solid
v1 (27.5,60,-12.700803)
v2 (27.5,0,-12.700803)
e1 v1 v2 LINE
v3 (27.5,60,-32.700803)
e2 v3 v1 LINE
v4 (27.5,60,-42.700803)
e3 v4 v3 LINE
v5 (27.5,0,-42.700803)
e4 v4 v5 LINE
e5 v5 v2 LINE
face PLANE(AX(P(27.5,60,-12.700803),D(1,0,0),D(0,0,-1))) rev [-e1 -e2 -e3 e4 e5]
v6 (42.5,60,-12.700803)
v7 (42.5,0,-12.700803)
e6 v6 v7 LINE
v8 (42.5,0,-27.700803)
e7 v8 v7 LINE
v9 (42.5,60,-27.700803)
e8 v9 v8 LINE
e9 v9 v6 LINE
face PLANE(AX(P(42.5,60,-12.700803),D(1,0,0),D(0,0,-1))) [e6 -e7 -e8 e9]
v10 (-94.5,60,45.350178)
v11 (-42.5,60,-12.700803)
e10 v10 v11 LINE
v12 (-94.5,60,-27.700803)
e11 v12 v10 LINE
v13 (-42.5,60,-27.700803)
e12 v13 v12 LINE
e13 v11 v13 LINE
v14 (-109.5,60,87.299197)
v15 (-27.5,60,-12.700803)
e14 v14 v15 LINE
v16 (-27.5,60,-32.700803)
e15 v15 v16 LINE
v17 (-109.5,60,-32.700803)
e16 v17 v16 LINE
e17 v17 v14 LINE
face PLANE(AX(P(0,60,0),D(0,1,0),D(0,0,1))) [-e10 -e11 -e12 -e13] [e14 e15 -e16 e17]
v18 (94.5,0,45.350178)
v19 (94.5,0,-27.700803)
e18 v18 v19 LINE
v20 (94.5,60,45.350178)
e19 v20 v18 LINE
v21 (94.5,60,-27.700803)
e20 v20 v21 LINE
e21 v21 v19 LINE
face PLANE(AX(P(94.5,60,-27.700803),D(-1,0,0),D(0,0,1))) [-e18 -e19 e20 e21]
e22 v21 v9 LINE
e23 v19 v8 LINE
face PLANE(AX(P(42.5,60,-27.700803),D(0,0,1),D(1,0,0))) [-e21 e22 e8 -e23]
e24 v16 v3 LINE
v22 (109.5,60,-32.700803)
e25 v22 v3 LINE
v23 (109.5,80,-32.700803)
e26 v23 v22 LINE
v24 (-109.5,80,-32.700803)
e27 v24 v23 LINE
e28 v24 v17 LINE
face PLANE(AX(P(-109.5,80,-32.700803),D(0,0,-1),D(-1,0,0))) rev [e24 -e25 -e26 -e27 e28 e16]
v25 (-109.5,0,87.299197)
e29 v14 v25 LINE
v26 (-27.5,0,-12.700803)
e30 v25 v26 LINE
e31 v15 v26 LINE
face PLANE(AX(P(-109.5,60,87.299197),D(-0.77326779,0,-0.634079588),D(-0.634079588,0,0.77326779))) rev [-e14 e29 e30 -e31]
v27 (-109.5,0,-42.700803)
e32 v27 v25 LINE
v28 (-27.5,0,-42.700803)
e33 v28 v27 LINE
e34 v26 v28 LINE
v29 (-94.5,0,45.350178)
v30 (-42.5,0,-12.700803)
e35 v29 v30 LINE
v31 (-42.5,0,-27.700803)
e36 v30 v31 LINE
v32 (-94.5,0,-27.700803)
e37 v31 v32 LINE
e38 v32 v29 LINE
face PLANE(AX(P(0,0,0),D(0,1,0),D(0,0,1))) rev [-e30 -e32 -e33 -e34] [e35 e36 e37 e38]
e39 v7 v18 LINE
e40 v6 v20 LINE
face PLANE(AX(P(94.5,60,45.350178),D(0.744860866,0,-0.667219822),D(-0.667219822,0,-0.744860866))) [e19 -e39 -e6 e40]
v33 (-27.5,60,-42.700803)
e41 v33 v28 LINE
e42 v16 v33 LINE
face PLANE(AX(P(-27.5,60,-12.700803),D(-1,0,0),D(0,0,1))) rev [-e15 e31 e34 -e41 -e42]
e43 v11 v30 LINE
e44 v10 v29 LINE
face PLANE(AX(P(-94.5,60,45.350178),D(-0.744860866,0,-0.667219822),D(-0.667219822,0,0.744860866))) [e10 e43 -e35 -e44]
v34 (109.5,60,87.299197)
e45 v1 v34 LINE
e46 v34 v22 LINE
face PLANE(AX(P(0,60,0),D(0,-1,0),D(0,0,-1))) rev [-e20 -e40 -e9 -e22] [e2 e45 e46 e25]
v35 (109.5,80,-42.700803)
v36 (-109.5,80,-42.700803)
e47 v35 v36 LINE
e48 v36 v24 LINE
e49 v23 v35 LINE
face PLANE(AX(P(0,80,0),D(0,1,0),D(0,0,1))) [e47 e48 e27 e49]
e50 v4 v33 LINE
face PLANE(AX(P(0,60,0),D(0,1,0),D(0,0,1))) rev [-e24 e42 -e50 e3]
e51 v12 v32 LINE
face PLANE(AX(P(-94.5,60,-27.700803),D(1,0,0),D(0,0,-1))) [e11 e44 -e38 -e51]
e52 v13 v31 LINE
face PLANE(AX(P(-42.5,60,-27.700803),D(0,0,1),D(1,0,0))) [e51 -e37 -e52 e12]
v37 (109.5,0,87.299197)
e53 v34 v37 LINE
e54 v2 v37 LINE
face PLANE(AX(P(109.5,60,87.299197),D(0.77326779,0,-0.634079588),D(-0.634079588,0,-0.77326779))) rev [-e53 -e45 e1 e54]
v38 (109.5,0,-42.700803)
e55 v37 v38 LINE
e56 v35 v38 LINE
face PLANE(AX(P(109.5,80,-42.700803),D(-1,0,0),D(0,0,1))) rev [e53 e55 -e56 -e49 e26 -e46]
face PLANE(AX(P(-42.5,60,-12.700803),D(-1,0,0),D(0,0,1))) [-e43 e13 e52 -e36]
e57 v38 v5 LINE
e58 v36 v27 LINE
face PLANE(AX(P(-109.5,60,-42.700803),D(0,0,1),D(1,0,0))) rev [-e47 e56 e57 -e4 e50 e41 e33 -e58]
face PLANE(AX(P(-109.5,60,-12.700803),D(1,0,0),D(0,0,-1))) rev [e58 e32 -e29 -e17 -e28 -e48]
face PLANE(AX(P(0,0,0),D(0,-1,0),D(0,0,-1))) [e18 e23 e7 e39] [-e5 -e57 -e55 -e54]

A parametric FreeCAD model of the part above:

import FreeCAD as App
import Part
import Sketcher

V = App.Vector

doc = App.newDocument("Part")
body = doc.addObject("PartDesign::Body", "Body")

# Sketch on XZ plane
sketch1 = body.newObject("Sketcher::SketchObject", "Sketch")
sketch1.AttachmentSupport = (doc.getObject("XZ_Plane"), [""])
sketch1.MapMode = "FlatFace"
sketch1.addGeometry(Part.LineSegment(V(-109.5, 87.299197, 0), V(-27.5, -12.700803, 0)), False)
sketch1.addGeometry(Part.LineSegment(V(-27.5, -12.700803, 0), V(-27.5, -42.700803, 0)), False)
sketch1.addGeometry(Part.LineSegment(V(-27.5, -42.700803, 0), V(-109.5, -42.700803, 0)), False)
sketch1.addGeometry(Part.LineSegment(V(-109.5, -42.700803, 0), V(-109.5, 87.299197, 0)), False)
sketch1.addGeometry(Part.LineSegment(V(-94.5, 45.350178, 0), V(-94.5, -27.700803, 0)), False)
sketch1.addGeometry(Part.LineSegment(V(-94.5, -27.700803, 0), V(-42.5, -27.700803, 0)), False)
sketch1.addGeometry(Part.LineSegment(V(-42.5, -27.700803, 0), V(-42.5, -12.700803, 0)), False)
sketch1.addGeometry(Part.LineSegment(V(-42.5, -12.700803, 0), V(-94.5, 45.350178, 0)), False)
sketch1.addConstraint(Sketcher.Constraint("Coincident", 0, 2, 1, 1))
sketch1.addConstraint(Sketcher.Constraint("Coincident", 1, 2, 2, 1))
sketch1.addConstraint(Sketcher.Constraint("Coincident", 2, 2, 3, 1))
sketch1.addConstraint(Sketcher.Constraint("Coincident", 3, 2, 0, 1))
sketch1.addConstraint(Sketcher.Constraint("Coincident", 4, 2, 5, 1))
sketch1.addConstraint(Sketcher.Constraint("Coincident", 5, 2, 6, 1))
sketch1.addConstraint(Sketcher.Constraint("Coincident", 6, 2, 7, 1))
sketch1.addConstraint(Sketcher.Constraint("Coincident", 7, 2, 4, 1))
sketch1.addConstraint(Sketcher.Constraint("Vertical", 1))
sketch1.addConstraint(Sketcher.Constraint("Horizontal", 2))
sketch1.addConstraint(Sketcher.Constraint("Vertical", 3))
sketch1.addConstraint(Sketcher.Constraint("Vertical", 4))
sketch1.addConstraint(Sketcher.Constraint("Horizontal", 5))
sketch1.addConstraint(Sketcher.Constraint("Vertical", 6))
sketch1.addConstraint(Sketcher.Constraint("Horizontal", 0, 2, 6, 2))
sketch1.addConstraint(Sketcher.Constraint("DistanceX", 2, 2, 2, 1, 82.0))
sketch1.addConstraint(Sketcher.Constraint("DistanceX", 5, 1, 5, 2, 52.0))
sketch1.addConstraint(Sketcher.Constraint("DistanceY", 1, 2, 1, 1, 30.0))
sketch1.addConstraint(Sketcher.Constraint("DistanceY", 3, 1, 3, 2, 130.0))
sketch1.addConstraint(Sketcher.Constraint("DistanceY", 6, 1, 6, 2, 15.0))
sketch1.addConstraint(Sketcher.Constraint("DistanceX", 2, 2, 4, 2, 15.0))
sketch1.addConstraint(Sketcher.Constraint("DistanceX", 0, 2, -1, 1, 27.5))
sketch1.addConstraint(Sketcher.Constraint("DistanceY", 4, 2, 4, 1, 73.050981))
sketch1.addConstraint(Sketcher.Constraint("DistanceY", 0, 2, -1, 1, 12.700803))
pad1 = body.newObject("PartDesign::Pad", "Pad")
pad1.Profile = sketch1
pad1.Length = 60
pad1.Reversed = True
body2 = doc.addObject("PartDesign::Body", "Body001")

# Sketch on XZ plane
sketch2 = body2.newObject("Sketcher::SketchObject", "Sketch001")
sketch2.AttachmentSupport = (doc.getObject("XZ_Plane001"), [""])
sketch2.MapMode = "FlatFace"
sketch2.addGeometry(Part.LineSegment(V(109.5, -42.700803, 0), V(27.5, -42.700803, 0)), False)
sketch2.addGeometry(Part.LineSegment(V(27.5, -42.700803, 0), V(27.5, -12.700803, 0)), False)
sketch2.addGeometry(Part.LineSegment(V(27.5, -12.700803, 0), V(109.5, 87.299197, 0)), False)
sketch2.addGeometry(Part.LineSegment(V(109.5, 87.299197, 0), V(109.5, -42.700803, 0)), False)
sketch2.addGeometry(Part.LineSegment(V(94.5, 45.350178, 0), V(42.5, -12.700803, 0)), False)
sketch2.addGeometry(Part.LineSegment(V(42.5, -12.700803, 0), V(42.5, -27.700803, 0)), False)
sketch2.addGeometry(Part.LineSegment(V(42.5, -27.700803, 0), V(94.5, -27.700803, 0)), False)
sketch2.addGeometry(Part.LineSegment(V(94.5, -27.700803, 0), V(94.5, 45.350178, 0)), False)
sketch2.addConstraint(Sketcher.Constraint("Coincident", 0, 2, 1, 1))
sketch2.addConstraint(Sketcher.Constraint("Coincident", 1, 2, 2, 1))
sketch2.addConstraint(Sketcher.Constraint("Coincident", 2, 2, 3, 1))
sketch2.addConstraint(Sketcher.Constraint("Coincident", 3, 2, 0, 1))
sketch2.addConstraint(Sketcher.Constraint("Coincident", 4, 2, 5, 1))
sketch2.addConstraint(Sketcher.Constraint("Coincident", 5, 2, 6, 1))
sketch2.addConstraint(Sketcher.Constraint("Coincident", 6, 2, 7, 1))
sketch2.addConstraint(Sketcher.Constraint("Coincident", 7, 2, 4, 1))
sketch2.addConstraint(Sketcher.Constraint("Horizontal", 0))
sketch2.addConstraint(Sketcher.Constraint("Vertical", 1))
sketch2.addConstraint(Sketcher.Constraint("Vertical", 3))
sketch2.addConstraint(Sketcher.Constraint("Vertical", 5))
sketch2.addConstraint(Sketcher.Constraint("Horizontal", 6))
sketch2.addConstraint(Sketcher.Constraint("Vertical", 7))
sketch2.addConstraint(Sketcher.Constraint("Horizontal", 1, 2, 4, 2))
sketch2.addConstraint(Sketcher.Constraint("DistanceX", 0, 2, 0, 1, 82.0))
sketch2.addConstraint(Sketcher.Constraint("DistanceX", 6, 1, 6, 2, 52.0))
sketch2.addConstraint(Sketcher.Constraint("DistanceY", 1, 1, 1, 2, 30.0))
sketch2.addConstraint(Sketcher.Constraint("DistanceY", 3, 2, 3, 1, 130.0))
sketch2.addConstraint(Sketcher.Constraint("DistanceY", 5, 2, 5, 1, 15.0))
sketch2.addConstraint(Sketcher.Constraint("DistanceX", 1, 2, 4, 2, 15.0))
sketch2.addConstraint(Sketcher.Constraint("DistanceX", -1, 1, 0, 2, 27.5))
sketch2.addConstraint(Sketcher.Constraint("DistanceY", 7, 1, 7, 2, 73.050981))
sketch2.addConstraint(Sketcher.Constraint("DistanceY", 0, 2, -1, 1, 42.700803))
pad2 = body2.newObject("PartDesign::Pad", "Pad001")
pad2.Profile = sketch2
pad2.Length = 60
pad2.Reversed = True
body.AllowCompound = True
doc.recompute()

boolean = body.newObject("PartDesign::Boolean", "Boolean")
boolean.Type = "Fuse"
boolean.addObjects([body2])

# Sketch on XZ plane
sketch3 = body.newObject("Sketcher::SketchObject", "Sketch002")
sketch3.AttachmentSupport = (doc.getObject("XZ_Plane"), [""])
sketch3.MapMode = "FlatFace"
sketch3.AttachmentOffset = App.Placement(V(0, 0, -60), App.Rotation())
sketch3.addGeometry(Part.LineSegment(V(-109.5, -42.700803, 0), V(-109.5, -32.700803, 0)), False)
sketch3.addGeometry(Part.LineSegment(V(-109.5, -32.700803, 0), V(109.5, -32.700803, 0)), False)
sketch3.addGeometry(Part.LineSegment(V(109.5, -32.700803, 0), V(109.5, -42.700803, 0)), False)
sketch3.addGeometry(Part.LineSegment(V(109.5, -42.700803, 0), V(-109.5, -42.700803, 0)), False)
sketch3.addConstraint(Sketcher.Constraint("Coincident", 0, 2, 1, 1))
sketch3.addConstraint(Sketcher.Constraint("Coincident", 1, 2, 2, 1))
sketch3.addConstraint(Sketcher.Constraint("Coincident", 2, 2, 3, 1))
sketch3.addConstraint(Sketcher.Constraint("Coincident", 3, 2, 0, 1))
sketch3.addConstraint(Sketcher.Constraint("Vertical", 0))
sketch3.addConstraint(Sketcher.Constraint("Horizontal", 1))
sketch3.addConstraint(Sketcher.Constraint("Vertical", 2))
sketch3.addConstraint(Sketcher.Constraint("Horizontal", 3))
sketch3.addConstraint(Sketcher.Constraint("DistanceX", 1, 1, 1, 2, 219.0))
sketch3.addConstraint(Sketcher.Constraint("DistanceY", 0, 1, 0, 2, 10.0))
sketch3.addConstraint(Sketcher.Constraint("DistanceX", 0, 2, -1, 1, 109.5))
sketch3.addConstraint(Sketcher.Constraint("DistanceY", 0, 2, -1, 1, 32.700803))
pad3 = body.newObject("PartDesign::Pad", "Pad002")
pad3.Profile = sketch3
pad3.Length = 20
pad3.Reversed = True

doc.recompute()
